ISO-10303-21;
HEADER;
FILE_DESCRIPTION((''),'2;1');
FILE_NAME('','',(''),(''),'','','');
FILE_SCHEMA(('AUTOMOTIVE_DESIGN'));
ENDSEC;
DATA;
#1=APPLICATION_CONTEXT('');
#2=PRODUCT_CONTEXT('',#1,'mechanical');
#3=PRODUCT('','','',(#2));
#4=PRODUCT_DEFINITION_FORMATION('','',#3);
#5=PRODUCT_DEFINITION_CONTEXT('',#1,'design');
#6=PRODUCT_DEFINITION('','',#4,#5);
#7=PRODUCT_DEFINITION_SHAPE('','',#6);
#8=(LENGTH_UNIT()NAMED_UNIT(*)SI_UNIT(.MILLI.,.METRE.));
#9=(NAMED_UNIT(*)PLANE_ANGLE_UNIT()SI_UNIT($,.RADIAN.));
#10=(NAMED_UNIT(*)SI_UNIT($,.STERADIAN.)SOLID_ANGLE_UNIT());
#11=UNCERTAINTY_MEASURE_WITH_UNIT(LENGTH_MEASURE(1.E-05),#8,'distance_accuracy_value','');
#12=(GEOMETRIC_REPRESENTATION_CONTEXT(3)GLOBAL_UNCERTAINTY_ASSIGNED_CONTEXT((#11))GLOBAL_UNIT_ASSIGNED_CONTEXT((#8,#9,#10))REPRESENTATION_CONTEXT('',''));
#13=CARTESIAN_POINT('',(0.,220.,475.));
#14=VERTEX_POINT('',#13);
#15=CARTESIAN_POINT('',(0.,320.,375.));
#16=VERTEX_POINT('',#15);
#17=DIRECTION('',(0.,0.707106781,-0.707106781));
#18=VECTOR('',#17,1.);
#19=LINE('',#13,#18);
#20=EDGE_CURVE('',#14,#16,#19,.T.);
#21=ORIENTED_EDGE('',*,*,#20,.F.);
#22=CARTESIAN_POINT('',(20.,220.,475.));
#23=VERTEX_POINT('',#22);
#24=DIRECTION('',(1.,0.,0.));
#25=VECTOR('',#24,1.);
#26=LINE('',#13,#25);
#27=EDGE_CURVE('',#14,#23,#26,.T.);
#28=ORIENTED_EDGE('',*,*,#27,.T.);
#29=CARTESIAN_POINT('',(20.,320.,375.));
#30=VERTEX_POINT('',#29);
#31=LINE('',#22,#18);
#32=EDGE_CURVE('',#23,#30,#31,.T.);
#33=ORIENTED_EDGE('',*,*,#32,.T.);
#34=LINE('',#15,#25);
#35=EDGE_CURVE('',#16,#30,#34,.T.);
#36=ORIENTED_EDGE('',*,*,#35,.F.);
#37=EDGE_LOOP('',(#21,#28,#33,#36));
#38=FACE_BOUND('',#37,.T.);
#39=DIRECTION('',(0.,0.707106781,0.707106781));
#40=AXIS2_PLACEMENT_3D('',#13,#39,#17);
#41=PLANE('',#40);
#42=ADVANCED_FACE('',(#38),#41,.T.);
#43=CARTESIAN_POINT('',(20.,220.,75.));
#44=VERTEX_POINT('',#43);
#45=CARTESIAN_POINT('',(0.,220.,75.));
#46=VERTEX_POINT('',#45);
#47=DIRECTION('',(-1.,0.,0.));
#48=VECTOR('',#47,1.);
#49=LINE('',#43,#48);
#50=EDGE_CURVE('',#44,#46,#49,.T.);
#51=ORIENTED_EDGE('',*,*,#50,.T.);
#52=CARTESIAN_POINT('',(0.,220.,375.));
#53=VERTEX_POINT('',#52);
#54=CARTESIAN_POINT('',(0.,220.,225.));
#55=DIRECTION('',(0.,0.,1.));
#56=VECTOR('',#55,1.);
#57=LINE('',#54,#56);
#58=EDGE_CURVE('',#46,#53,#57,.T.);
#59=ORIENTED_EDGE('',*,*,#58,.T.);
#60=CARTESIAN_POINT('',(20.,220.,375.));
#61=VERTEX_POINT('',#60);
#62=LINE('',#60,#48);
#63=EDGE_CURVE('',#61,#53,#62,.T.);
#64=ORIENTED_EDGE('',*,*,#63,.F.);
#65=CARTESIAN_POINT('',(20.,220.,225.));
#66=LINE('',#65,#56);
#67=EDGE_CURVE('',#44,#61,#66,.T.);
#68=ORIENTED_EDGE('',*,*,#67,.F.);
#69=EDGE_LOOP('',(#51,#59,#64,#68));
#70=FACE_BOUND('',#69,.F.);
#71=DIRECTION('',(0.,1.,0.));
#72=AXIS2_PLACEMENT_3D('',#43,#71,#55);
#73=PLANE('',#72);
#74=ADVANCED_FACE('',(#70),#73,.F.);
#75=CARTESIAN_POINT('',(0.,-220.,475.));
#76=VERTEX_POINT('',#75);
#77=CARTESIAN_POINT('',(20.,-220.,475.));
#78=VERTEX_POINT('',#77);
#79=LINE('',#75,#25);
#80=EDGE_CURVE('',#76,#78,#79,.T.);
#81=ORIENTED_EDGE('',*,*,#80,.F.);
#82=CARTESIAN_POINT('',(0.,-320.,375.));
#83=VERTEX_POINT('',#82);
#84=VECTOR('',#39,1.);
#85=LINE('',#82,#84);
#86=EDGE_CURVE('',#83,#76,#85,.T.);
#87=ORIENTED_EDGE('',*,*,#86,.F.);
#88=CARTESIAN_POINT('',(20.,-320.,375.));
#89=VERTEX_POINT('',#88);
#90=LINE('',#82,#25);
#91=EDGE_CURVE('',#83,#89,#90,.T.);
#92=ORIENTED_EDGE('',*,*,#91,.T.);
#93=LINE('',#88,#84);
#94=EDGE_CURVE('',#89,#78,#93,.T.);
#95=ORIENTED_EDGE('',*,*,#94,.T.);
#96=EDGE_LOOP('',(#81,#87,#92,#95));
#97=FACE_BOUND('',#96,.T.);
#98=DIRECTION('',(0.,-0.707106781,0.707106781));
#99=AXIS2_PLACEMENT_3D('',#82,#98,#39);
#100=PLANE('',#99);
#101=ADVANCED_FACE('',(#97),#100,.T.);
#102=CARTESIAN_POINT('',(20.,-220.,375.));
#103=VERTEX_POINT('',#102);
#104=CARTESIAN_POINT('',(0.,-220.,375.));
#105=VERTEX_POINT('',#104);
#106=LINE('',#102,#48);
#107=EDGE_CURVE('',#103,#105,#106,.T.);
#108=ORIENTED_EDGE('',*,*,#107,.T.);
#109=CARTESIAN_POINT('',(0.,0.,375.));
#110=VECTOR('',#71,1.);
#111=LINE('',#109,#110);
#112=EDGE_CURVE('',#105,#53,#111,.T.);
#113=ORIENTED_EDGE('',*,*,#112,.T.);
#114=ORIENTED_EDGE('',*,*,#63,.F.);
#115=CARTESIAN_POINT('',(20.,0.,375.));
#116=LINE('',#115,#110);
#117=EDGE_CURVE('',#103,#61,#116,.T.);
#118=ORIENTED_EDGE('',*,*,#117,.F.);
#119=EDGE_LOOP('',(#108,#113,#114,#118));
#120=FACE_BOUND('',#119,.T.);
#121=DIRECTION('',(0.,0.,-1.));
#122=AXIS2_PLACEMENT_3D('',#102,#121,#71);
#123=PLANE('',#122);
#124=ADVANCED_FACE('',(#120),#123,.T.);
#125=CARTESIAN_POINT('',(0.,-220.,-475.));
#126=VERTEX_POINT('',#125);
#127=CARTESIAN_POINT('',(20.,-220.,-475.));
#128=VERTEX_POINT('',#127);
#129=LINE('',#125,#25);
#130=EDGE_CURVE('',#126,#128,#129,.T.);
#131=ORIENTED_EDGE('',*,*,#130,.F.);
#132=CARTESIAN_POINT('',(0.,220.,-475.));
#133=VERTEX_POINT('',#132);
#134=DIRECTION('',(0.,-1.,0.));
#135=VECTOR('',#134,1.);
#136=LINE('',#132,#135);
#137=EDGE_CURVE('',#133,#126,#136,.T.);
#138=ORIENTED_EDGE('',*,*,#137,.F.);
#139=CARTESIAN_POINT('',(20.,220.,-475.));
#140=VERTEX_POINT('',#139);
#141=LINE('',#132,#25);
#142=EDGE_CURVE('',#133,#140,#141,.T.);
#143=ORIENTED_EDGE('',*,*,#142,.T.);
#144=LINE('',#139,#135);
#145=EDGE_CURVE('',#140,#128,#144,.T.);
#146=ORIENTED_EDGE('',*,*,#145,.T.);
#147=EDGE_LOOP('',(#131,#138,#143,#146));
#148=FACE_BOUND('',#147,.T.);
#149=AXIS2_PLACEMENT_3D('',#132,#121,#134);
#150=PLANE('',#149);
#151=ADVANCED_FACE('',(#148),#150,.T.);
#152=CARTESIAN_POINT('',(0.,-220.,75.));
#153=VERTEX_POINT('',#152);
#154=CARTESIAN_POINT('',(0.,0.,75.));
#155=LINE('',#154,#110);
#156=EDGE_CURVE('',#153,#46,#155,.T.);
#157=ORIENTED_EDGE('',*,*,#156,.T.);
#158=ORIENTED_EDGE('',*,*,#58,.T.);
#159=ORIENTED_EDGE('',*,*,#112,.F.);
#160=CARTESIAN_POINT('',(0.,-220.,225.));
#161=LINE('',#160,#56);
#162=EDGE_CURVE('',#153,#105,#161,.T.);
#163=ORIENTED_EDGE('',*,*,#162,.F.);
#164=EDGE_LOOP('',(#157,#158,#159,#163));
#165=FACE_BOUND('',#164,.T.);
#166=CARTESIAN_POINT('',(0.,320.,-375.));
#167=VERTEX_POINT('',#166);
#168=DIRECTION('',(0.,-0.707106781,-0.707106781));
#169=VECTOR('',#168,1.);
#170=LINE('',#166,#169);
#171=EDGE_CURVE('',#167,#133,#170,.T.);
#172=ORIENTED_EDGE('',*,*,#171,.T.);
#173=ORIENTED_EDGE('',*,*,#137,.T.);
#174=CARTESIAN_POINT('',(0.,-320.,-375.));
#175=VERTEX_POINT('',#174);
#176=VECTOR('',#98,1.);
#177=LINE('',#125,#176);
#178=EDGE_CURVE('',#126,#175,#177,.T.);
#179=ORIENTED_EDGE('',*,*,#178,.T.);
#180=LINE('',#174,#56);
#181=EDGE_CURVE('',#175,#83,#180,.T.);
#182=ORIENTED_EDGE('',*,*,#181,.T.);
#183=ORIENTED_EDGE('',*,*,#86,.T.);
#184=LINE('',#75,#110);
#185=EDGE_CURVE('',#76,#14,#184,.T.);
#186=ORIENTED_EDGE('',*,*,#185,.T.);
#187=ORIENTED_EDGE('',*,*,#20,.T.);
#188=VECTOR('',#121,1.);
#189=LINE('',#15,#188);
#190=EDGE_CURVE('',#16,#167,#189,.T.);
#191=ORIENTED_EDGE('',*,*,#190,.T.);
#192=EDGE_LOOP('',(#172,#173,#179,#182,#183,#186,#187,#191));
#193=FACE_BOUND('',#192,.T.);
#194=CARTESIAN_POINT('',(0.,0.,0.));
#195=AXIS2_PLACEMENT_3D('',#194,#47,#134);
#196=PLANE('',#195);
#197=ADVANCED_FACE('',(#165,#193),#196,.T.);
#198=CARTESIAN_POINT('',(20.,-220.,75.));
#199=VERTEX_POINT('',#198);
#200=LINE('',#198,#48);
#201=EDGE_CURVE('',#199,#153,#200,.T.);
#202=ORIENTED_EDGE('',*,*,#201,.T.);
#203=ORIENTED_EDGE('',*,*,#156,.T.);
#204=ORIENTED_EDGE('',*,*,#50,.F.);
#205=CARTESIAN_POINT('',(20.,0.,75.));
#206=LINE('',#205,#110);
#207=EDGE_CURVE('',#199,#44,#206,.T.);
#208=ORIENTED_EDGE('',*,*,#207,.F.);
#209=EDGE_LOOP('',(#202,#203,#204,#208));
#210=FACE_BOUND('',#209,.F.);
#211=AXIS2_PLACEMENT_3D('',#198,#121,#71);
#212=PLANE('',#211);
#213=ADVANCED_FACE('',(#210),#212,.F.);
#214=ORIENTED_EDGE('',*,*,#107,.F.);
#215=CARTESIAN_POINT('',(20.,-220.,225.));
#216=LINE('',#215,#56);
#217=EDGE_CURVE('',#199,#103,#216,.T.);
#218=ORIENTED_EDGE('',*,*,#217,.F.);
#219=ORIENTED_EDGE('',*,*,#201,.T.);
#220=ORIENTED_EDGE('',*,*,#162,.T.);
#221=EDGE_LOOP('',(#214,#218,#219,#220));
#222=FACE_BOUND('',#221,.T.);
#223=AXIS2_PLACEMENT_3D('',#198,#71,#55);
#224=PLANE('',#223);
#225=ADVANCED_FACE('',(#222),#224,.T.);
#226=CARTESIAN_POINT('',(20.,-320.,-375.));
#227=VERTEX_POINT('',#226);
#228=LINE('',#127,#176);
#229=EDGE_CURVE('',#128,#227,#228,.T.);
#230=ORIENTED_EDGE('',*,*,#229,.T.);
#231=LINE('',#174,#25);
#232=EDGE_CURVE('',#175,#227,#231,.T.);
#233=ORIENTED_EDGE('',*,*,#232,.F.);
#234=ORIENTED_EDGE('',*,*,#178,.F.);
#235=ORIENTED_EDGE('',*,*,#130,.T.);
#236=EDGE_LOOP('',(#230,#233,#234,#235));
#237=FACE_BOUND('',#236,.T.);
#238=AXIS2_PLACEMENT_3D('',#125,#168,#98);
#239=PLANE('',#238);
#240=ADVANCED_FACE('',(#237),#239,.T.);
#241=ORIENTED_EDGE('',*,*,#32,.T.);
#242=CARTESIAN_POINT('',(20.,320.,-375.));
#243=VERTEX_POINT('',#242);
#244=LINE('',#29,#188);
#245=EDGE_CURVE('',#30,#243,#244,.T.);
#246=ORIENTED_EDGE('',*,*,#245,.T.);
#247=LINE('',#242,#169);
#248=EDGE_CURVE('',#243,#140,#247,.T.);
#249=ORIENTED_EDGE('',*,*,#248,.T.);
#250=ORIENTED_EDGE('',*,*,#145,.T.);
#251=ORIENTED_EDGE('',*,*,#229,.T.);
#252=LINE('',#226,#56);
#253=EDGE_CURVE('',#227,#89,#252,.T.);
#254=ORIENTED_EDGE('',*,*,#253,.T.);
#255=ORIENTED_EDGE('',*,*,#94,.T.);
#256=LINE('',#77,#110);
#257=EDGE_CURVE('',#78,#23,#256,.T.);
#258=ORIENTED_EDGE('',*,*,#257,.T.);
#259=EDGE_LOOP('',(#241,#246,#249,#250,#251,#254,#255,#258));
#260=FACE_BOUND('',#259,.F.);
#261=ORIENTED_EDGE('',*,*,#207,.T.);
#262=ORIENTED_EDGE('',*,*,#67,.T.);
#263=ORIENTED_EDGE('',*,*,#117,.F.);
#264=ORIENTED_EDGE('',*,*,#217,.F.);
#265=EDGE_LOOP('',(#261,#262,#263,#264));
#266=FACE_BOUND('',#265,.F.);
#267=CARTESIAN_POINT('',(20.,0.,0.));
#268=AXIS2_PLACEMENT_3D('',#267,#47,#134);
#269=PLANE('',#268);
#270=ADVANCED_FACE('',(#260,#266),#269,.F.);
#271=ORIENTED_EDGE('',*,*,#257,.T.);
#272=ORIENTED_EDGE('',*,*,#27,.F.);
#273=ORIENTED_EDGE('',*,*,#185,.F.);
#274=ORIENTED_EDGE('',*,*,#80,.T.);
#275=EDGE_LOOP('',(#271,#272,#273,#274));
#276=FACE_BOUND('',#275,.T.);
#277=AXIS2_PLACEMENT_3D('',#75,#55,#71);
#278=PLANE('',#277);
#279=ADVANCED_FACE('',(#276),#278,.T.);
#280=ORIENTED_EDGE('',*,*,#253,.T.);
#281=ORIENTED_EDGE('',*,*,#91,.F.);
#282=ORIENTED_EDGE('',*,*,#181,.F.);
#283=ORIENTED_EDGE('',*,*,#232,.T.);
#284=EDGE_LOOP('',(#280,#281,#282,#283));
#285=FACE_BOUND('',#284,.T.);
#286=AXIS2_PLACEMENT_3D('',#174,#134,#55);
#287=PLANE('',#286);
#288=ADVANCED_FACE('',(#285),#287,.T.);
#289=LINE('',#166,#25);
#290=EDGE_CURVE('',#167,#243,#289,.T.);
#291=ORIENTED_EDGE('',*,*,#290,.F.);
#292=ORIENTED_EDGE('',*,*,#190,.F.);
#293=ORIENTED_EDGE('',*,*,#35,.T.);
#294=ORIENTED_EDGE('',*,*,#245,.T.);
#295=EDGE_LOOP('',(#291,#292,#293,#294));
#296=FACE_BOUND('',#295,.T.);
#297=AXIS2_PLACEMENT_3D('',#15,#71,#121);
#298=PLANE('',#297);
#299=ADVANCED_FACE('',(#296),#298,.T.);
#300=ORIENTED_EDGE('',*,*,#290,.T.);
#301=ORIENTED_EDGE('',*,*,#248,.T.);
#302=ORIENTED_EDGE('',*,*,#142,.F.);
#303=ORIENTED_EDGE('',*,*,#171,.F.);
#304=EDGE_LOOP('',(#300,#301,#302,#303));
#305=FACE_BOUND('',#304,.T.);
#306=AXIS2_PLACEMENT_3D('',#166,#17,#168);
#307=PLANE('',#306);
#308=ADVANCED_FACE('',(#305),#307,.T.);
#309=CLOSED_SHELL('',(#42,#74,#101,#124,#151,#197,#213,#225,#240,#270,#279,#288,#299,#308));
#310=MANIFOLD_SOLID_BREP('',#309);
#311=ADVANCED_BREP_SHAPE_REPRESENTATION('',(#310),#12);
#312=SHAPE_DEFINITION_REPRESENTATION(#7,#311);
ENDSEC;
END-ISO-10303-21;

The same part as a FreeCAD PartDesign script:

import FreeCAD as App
import Part
import Sketcher

V = App.Vector
Q = App.Units.Quantity


def add_polygon(sketch, points):
    """Adds a closed chain of lines whose ends are joined by coincident constraints."""
    first, n = sketch.GeometryCount, len(points)
    for a, b in zip(points, points[1:] + points[:1]):
        sketch.addGeometry(Part.LineSegment(App.Vector(*a, 0), App.Vector(*b, 0)), False)
    for i in range(n):
        sketch.addConstraint(Sketcher.Constraint("Coincident", first + i, 2, first + (i + 1) % n, 1))

doc = App.newDocument("Part")
params = doc.addObject("Spreadsheet::Sheet", "Params")
for row, (alias, value) in enumerate([
    ("sketch1_width", "440 mm"),
    ("sketch1_height", "750 mm"),
    ("pad1_length", "20 mm"),
    ("sketch2_width", "440 mm"),
    ("sketch2_height", "300 mm"),
    ("pocket1_length", "20 mm"),
], start=1):
    params.set(f"A{row}", alias)
    params.set(f"B{row}", "=" + value)
    params.setAlias(f"B{row}", alias)

body = doc.addObject("PartDesign::Body", "Body")

# Sketch on YZ plane
sketch1 = body.newObject("Sketcher::SketchObject", "Sketch")
sketch1.AttachmentSupport = (doc.getObject("YZ_Plane"), [""])
sketch1.MapMode = "FlatFace"
add_polygon(sketch1, [(220, 475), (-220, 475), (-320, 375), (-320, -375), (-220, -475), (220, -475), (320, -375), (320, 375)])  # lines 0-7
sketch1.addConstraint([
    Sketcher.Constraint("Horizontal", 0),
    Sketcher.Constraint("Vertical", 2),
    Sketcher.Constraint("Horizontal", 4),
    Sketcher.Constraint("Vertical", 6),
    Sketcher.Constraint("Symmetric", 0, 2, 4, 2, -1, 1),
    Sketcher.Constraint("Symmetric", 1, 2, 5, 2, -1, 1),
    Sketcher.Constraint("Perpendicular", 1, 3),
    Sketcher.Constraint("Perpendicular", 5, 7),
    Sketcher.Constraint("Horizontal", 2, 2, 5, 2),
    Sketcher.Constraint("Horizontal", 1, 2, 6, 2),
    Sketcher.Constraint("Vertical", 0, 2, 3, 2),
    Sketcher.Constraint("DistanceX", 0, 2, 0, 1, Q("440 mm")),
    Sketcher.Constraint("DistanceY", 2, 2, 2, 1, Q("750 mm")),
    Sketcher.Constraint("DistanceY", -1, 1, 0, 2, Q("475 mm")),
])
sketch1.setExpression("Constraints[19]", "Params.sketch1_width")
sketch1.setExpression("Constraints[20]", "Params.sketch1_height")
pad1 = body.newObject("PartDesign::Pad", "Pad")
pad1.Profile = sketch1
pad1.setExpression("Length", "Params.pad1_length")

# Sketch on YZ plane
sketch2 = body.newObject("Sketcher::SketchObject", "Sketch001")
sketch2.AttachmentSupport = (doc.getObject("YZ_Plane"), [""])
sketch2.MapMode = "FlatFace"
sketch2.AttachmentOffset = App.Placement(V(0, 0, 20), App.Rotation())
add_polygon(sketch2, [(-220, 375), (-220, 75), (220, 75), (220, 375)])  # lines 0-3
sketch2.addConstraint([
    Sketcher.Constraint("Vertical", 0),
    Sketcher.Constraint("Horizontal", 1),
    Sketcher.Constraint("Vertical", 2),
    Sketcher.Constraint("Horizontal", 3),
    Sketcher.Constraint("DistanceX", 1, 1, 1, 2, Q("440 mm")),
    Sketcher.Constraint("DistanceY", 0, 2, 0, 1, Q("300 mm")),
    Sketcher.Constraint("DistanceX", 0, 2, -1, 1, Q("220 mm")),
    Sketcher.Constraint("DistanceY", -1, 1, 0, 2, Q("75 mm")),
])
sketch2.setExpression("Constraints[8]", "Params.sketch2_width")
sketch2.setExpression("Constraints[9]", "Params.sketch2_height")
pocket1 = body.newObject("PartDesign::Pocket", "Pocket")
pocket1.Profile = sketch2
pocket1.setExpression("Length", "Params.pocket1_length")

doc.recompute()
